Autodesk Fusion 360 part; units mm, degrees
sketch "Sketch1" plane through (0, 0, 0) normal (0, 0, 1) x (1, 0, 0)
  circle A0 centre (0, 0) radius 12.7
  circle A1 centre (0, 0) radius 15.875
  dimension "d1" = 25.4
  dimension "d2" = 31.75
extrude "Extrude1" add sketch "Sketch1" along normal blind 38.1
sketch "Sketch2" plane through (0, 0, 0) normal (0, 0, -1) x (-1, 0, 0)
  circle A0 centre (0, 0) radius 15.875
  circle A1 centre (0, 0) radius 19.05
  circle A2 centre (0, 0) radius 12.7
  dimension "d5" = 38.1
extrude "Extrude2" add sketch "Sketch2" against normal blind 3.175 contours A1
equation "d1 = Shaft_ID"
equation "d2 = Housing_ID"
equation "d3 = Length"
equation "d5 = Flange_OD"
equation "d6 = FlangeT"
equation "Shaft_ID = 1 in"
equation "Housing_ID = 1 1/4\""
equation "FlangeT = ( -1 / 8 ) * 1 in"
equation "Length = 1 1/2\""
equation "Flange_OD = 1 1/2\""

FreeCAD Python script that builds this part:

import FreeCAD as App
import Part
import Sketcher
Q = App.Units.Quantity

doc = App.newDocument("Part")
body = doc.addObject("PartDesign::Body", "Body")

# Sketch on XY plane
sketch1 = body.newObject("Sketcher::SketchObject", "Sketch")
sketch1.AttachmentSupport = (doc.getObject("XY_Plane"), [""])
sketch1.MapMode = "FlatFace"
sketch1.addGeometry([
    Part.Circle(App.Vector(0, 0, 0), App.Vector(0, 0, 1), 15.875),
    Part.Circle(App.Vector(0, 0, 0), App.Vector(0, 0, 1), 12.7),
], False)
sketch1.addConstraint([
    Sketcher.Constraint("Coincident", 0, 3, -1, 1),
    Sketcher.Constraint("Coincident", 1, 3, -1, 1),
    Sketcher.Constraint("Diameter", 1, Q("1 in")),
    Sketcher.Constraint("Diameter", 0, Q("1.25 in")),
])
pad1 = body.newObject("PartDesign::Pad", "Pad")
pad1.Profile = sketch1
pad1.Length = Q("1.5 in")

# Sketch on XY plane
sketch2 = body.newObject("Sketcher::SketchObject", "Sketch001")
sketch2.AttachmentSupport = (doc.getObject("XY_Plane"), [""])
sketch2.MapMode = "FlatFace"
sketch2.addGeometry([
    Part.Circle(App.Vector(0, 0, 0), App.Vector(0, 0, 1), 19.05),
    Part.Circle(App.Vector(0, 0, 0), App.Vector(0, 0, 1), 15.875),
], False)
sketch2.addConstraint([
    Sketcher.Constraint("Coincident", 0, 3, -1, 1),
    Sketcher.Constraint("Coincident", 1, 3, -1, 1),
    Sketcher.Constraint("Diameter", 0, Q("1.5 in")),
    Sketcher.Constraint("Diameter", 1, Q("1.25 in")),
])
pad2 = body.newObject("PartDesign::Pad", "Pad001")
pad2.Profile = sketch2
pad2.Length = Q("0.125 in")

doc.recompute()
